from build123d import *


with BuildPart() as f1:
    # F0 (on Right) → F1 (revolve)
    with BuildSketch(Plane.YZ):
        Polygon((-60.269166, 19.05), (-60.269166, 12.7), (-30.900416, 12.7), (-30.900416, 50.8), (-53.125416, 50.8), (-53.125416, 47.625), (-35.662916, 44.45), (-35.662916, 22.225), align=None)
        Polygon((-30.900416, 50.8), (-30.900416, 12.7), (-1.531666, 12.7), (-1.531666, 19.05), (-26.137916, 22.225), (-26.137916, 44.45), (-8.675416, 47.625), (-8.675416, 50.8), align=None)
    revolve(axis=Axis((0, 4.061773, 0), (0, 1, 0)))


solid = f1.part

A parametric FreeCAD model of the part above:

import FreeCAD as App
import Part
import Sketcher
Q = App.Units.Quantity


def add_polygon(sketch, points):
    """Adds a closed chain of lines whose ends are joined by coincident constraints."""
    first, n = sketch.GeometryCount, len(points)
    for a, b in zip(points, points[1:] + points[:1]):
        sketch.addGeometry(Part.LineSegment(App.Vector(*a, 0), App.Vector(*b, 0)), False)
    for i in range(n):
        sketch.addConstraint(Sketcher.Constraint("Coincident", first + i, 2, first + (i + 1) % n, 1))

doc = App.newDocument("Part")
params = doc.addObject("Spreadsheet::Sheet", "Params")
for row, (alias, value) in enumerate([
    ("sketch1_width", "1.75 in"),
    ("sketch1_height", "0.25 in"),
    ("sketch1_width2", "2.3125 in"),
    ("sketch1_height2", "0.875 in"),
    ("revolution_angle", "360 deg"),
], start=1):
    params.set(f"A{row}", alias)
    params.set(f"B{row}", "=" + value)
    params.setAlias(f"B{row}", alias)

body = doc.addObject("PartDesign::Body", "Body")

sketch1 = body.newObject("Sketcher::SketchObject", "Sketch")
sketch1.AttachmentSupport = (doc.getObject("YZ_Plane"), [""])
sketch1.MapMode = "FlatFace"
add_polygon(sketch1, [(-60.3, 19.1), (-60.3, 12.7), (-1.5, 12.7), (-1.5, 19.1), (-26.1, 22.2), (-26.1, 44.5), (-8.7, 47.6), (-8.7, 50.8), (-53.1, 50.8), (-53.1, 47.6), (-35.7, 44.5), (-35.7, 22.2)])
sketch1.addConstraint(Sketcher.Constraint("Vertical", 0))
sketch1.addConstraint(Sketcher.Constraint("Horizontal", 1))
sketch1.addConstraint(Sketcher.Constraint("Vertical", 2))
sketch1.addConstraint(Sketcher.Constraint("Vertical", 4))
sketch1.addConstraint(Sketcher.Constraint("Vertical", 6))
sketch1.addConstraint(Sketcher.Constraint("Horizontal", 7))
sketch1.addConstraint(Sketcher.Constraint("Vertical", 8))
sketch1.addConstraint(Sketcher.Constraint("Vertical", 10))
sketch1.addConstraint(Sketcher.Constraint("Horizontal", 5, 2, 8, 2))
sketch1.addConstraint(Sketcher.Constraint("Horizontal", 4, 2, 9, 2))
sketch1.addConstraint(Sketcher.Constraint("Horizontal", 3, 2, 10, 2))
sketch1.addConstraint(Sketcher.Constraint("Horizontal", 2, 2, 11, 2))
sketch1.addConstraint(Sketcher.Constraint("Equal", 5, 9))
sketch1.addConstraint(Sketcher.Constraint("Equal", 3, 11))
sketch1.addConstraint(Sketcher.Constraint("DistanceY", -1, 1, 6, 2, Q("2 in")))
sketch1.addConstraint(Sketcher.Constraint("DistanceY", 2, 2, 4, 2, Q("1 in")))
sketch1.addConstraint(Sketcher.Constraint("DistanceY", 3, 2, 5, 2, Q("1 in")))
sketch1.addConstraint(Sketcher.Constraint("DistanceX", 7, 2, 7, 1, Q("1.75 in")))
sketch1.addConstraint(Sketcher.Constraint("DistanceY", 0, 2, 0, 1, Q("0.25 in")))
sketch1.addConstraint(Sketcher.Constraint("DistanceY", -1, 1, 0, 2, Q("0.5 in")))
sketch1.addConstraint(Sketcher.Constraint("DistanceX", 1, 1, 1, 2, Q("2.3125 in")))
sketch1.addConstraint(Sketcher.Constraint("DistanceY", 4, 1, 4, 2, Q("0.875 in")))
sketch1.addConstraint(Sketcher.Constraint("DistanceX", 3, 2, 2, 2, Q("0.96875 in")))
sketch1.addConstraint(Sketcher.Constraint("DistanceX", 0, 2, -1, 1, 60.269166))
sketch1.setExpression("Constraints[29]", "Params.sketch1_width")
sketch1.setExpression("Constraints[30]", "Params.sketch1_height")
sketch1.setExpression("Constraints[32]", "Params.sketch1_width2")
sketch1.setExpression("Constraints[33]", "Params.sketch1_height2")
revolution = body.newObject("PartDesign::Revolution", "Revolution")
revolution.Profile = sketch1
revolution.ReferenceAxis = (sketch1, ["H_Axis"])
revolution.setExpression("Angle", "Params.revolution_angle")

doc.recompute()
